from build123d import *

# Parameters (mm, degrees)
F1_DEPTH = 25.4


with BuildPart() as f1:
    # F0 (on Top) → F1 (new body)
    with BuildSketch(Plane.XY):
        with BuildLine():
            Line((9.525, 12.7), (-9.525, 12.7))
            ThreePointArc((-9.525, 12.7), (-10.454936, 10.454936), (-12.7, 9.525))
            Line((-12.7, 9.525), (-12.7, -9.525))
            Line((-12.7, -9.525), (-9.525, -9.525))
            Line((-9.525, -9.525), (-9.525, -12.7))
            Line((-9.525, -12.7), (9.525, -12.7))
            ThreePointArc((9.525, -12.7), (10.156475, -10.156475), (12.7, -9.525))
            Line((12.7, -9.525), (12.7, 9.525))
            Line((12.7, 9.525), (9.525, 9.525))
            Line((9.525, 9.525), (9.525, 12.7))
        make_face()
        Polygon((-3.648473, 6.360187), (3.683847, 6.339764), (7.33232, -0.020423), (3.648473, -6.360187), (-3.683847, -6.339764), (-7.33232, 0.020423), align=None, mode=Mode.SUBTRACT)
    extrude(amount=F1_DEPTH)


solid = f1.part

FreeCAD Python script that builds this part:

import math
import FreeCAD as App
import Part
import Sketcher
Q = App.Units.Quantity


def add_polygon(sketch, points):
    """Adds a closed chain of lines whose ends are joined by coincident constraints."""
    first, n = sketch.GeometryCount, len(points)
    for a, b in zip(points, points[1:] + points[:1]):
        sketch.addGeometry(Part.LineSegment(App.Vector(*a, 0), App.Vector(*b, 0)), False)
    for i in range(n):
        sketch.addConstraint(Sketcher.Constraint("Coincident", first + i, 2, first + (i + 1) % n, 1))

doc = App.newDocument("Part")
body = doc.addObject("PartDesign::Body", "Body")

sketch1 = body.newObject("Sketcher::SketchObject", "Sketch")
sketch1.AttachmentSupport = (doc.getObject("XY_Plane"), [""])
sketch1.MapMode = "FlatFace"
sketch1.addGeometry(Part.LineSegment(App.Vector(9.5, 12.7, 0), App.Vector(-9.5, 12.7, 0)), False)
sketch1.addGeometry(Part.ArcOfCircle(Part.Circle(App.Vector(-12.7, 12.7, 0), App.Vector(0, 0, 1), 3.2), math.radians(-90), math.radians(0)), False)
sketch1.addGeometry(Part.LineSegment(App.Vector(-12.7, 9.5, 0), App.Vector(-12.7, -9.5, 0)), False)
sketch1.addGeometry(Part.LineSegment(App.Vector(-12.7, -9.5, 0), App.Vector(-9.5, -9.5, 0)), False)
sketch1.addGeometry(Part.LineSegment(App.Vector(-9.5, -9.5, 0), App.Vector(-9.5, -12.7, 0)), False)
sketch1.addGeometry(Part.LineSegment(App.Vector(-9.5, -12.7, 0), App.Vector(9.5, -12.7, 0)), False)
sketch1.addGeometry(Part.ArcOfCircle(Part.Circle(App.Vector(12, -12, 0), App.Vector(0, 0, 1), 2.5), math.radians(73), math.radians(197)), False)
sketch1.addGeometry(Part.LineSegment(App.Vector(12.7, -9.5, 0), App.Vector(12.7, 9.5, 0)), False)
sketch1.addGeometry(Part.LineSegment(App.Vector(12.7, 9.5, 0), App.Vector(9.5, 9.5, 0)), False)
sketch1.addGeometry(Part.LineSegment(App.Vector(9.5, 9.5, 0), App.Vector(9.5, 12.7, 0)), False)
add_polygon(sketch1, [(-7.3, 0), (-3.6, 6.4), (3.7, 6.3), (7.3, 0), (3.6, -6.4), (-3.7, -6.3)])
sketch1.addConstraint(Sketcher.Constraint("Coincident", 0, 2, 1, 2))
sketch1.addConstraint(Sketcher.Constraint("Coincident", 1, 1, 2, 1))
sketch1.addConstraint(Sketcher.Constraint("Coincident", 2, 2, 3, 1))
sketch1.addConstraint(Sketcher.Constraint("Coincident", 3, 2, 4, 1))
sketch1.addConstraint(Sketcher.Constraint("Coincident", 4, 2, 5, 1))
sketch1.addConstraint(Sketcher.Constraint("Coincident", 5, 2, 6, 2))
sketch1.addConstraint(Sketcher.Constraint("Coincident", 6, 1, 7, 1))
sketch1.addConstraint(Sketcher.Constraint("Coincident", 7, 2, 8, 1))
sketch1.addConstraint(Sketcher.Constraint("Coincident", 8, 2, 9, 1))
sketch1.addConstraint(Sketcher.Constraint("Coincident", 9, 2, 0, 1))
sketch1.addConstraint(Sketcher.Constraint("Horizontal", 0))
sketch1.addConstraint(Sketcher.Constraint("Vertical", 2))
sketch1.addConstraint(Sketcher.Constraint("Horizontal", 3))
sketch1.addConstraint(Sketcher.Constraint("Vertical", 4))
sketch1.addConstraint(Sketcher.Constraint("Horizontal", 5))
sketch1.addConstraint(Sketcher.Constraint("Vertical", 7))
sketch1.addConstraint(Sketcher.Constraint("Horizontal", 8))
sketch1.addConstraint(Sketcher.Constraint("Vertical", 9))
sketch1.addConstraint(Sketcher.Constraint("Symmetric", 0, 2, 5, 2, -1, 1))
sketch1.addConstraint(Sketcher.Constraint("Symmetric", 1, 1, 6, 1, -1, 1))
sketch1.addConstraint(Sketcher.Constraint("Symmetric", 3, 2, 8, 2, -1, 1))
sketch1.addConstraint(Sketcher.Constraint("Symmetric", 10, 2, 13, 2, -1, 1))
sketch1.addConstraint(Sketcher.Constraint("Symmetric", 11, 2, 14, 2, -1, 1))
sketch1.addConstraint(Sketcher.Constraint("Symmetric", 12, 2, 15, 2, -1, 1))
sketch1.addConstraint(Sketcher.Constraint("Horizontal", 1, 3, 0, 2))
sketch1.addConstraint(Sketcher.Constraint("Horizontal", 3, 2, 6, 1))
sketch1.addConstraint(Sketcher.Constraint("Vertical", 0, 2, 3, 2))
sketch1.addConstraint(Sketcher.Constraint("Equal", 5, 2))
sketch1.addConstraint(Sketcher.Constraint("Equal", 8, 4))
sketch1.addConstraint(Sketcher.Constraint("Equal", 10, 11))
sketch1.addConstraint(Sketcher.Constraint("Equal", 11, 12))
sketch1.addConstraint(Sketcher.Constraint("Radius", 6, Q("0.1 in")))
sketch1.addConstraint(Sketcher.Constraint("Radius", 1, Q("0.125 in")))
sketch1.addConstraint(Sketcher.Constraint("DistanceY", 4, 2, 0, 2, Q("1 in")))
sketch1.addConstraint(Sketcher.Constraint("Distance", 10, Q("7.332349 mm")))
sketch1.addConstraint(Sketcher.Constraint("DistanceX", -1, 1, 12, 2, Q("7.33232 mm")))
sketch1.addConstraint(Sketcher.Constraint("DistanceY", 12, 2, 10, 2, Q("6.38061 mm")))
sketch1.addConstraint(Sketcher.Constraint("DistanceY", 6, 3, 13, 2, Q("5.592339 mm")))
pad1 = body.newObject("PartDesign::Pad", "Pad")
pad1.Profile = sketch1
pad1.Length = Q("1 in")

doc.recompute()
